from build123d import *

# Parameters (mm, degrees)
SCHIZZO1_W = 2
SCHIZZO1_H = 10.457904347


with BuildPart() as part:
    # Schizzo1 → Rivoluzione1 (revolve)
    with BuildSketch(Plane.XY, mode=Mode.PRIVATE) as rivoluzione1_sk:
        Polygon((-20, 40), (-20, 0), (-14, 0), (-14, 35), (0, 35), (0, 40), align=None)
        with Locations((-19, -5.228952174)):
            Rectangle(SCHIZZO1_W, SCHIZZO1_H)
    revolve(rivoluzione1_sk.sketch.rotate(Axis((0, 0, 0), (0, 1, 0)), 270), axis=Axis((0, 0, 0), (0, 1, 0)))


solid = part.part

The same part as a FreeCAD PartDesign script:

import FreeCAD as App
import Part
import Sketcher
from FreeCAD import Vector


def add_polygon(sketch, points):
    """Adds a closed chain of lines whose ends are joined by coincident constraints."""
    first, n = sketch.GeometryCount, len(points)
    for a, b in zip(points, points[1:] + points[:1]):
        sketch.addGeometry(Part.LineSegment(App.Vector(*a, 0), App.Vector(*b, 0)), False)
    for i in range(n):
        sketch.addConstraint(Sketcher.Constraint("Coincident", first + i, 2, first + (i + 1) % n, 1))

doc = App.newDocument("Part")
body = doc.addObject("PartDesign::Body", "Body")

# Sketch on XY plane
sketch1 = doc.addObject("Sketcher::SketchObject", "Sketch")
body.addObject(sketch1)
sketch1.AttachmentSupport = (doc.XY_Plane, [""])
sketch1.MapMode = "FlatFace"
add_polygon(sketch1, [(-20, 40), (-20, -10.5), (-18, -10.5), (-18, 0), (-14, 0), (-14, 35), (0, 35), (0, 40)])  # lines 0-7
sketch1.addConstraint([
    Sketcher.Constraint("Vertical", 0),
    Sketcher.Constraint("Horizontal", 1),
    Sketcher.Constraint("Vertical", 2),
    Sketcher.Constraint("Horizontal", 3),
    Sketcher.Constraint("Vertical", 4),
    Sketcher.Constraint("Horizontal", 5),
    Sketcher.Constraint("Vertical", 6),
    Sketcher.Constraint("Horizontal", 7),
    Sketcher.Constraint("PointOnObject", 2, 2, -1),
    Sketcher.Constraint("PointOnObject", 5, 2, -2),
    Sketcher.Constraint("DistanceX", 1, 1, 1, 2, 2.0),
    Sketcher.Constraint("DistanceX", 3, 1, 3, 2, 4.0),
    Sketcher.Constraint("DistanceX", 5, 1, 5, 2, 14.0),
    Sketcher.Constraint("DistanceY", 4, 1, 4, 2, 35.0),
    Sketcher.Constraint("DistanceY", 6, 1, 6, 2, 5.0),
    Sketcher.Constraint("DistanceY", 0, 2, 0, 1, 50.457904),
])
revolution = doc.addObject("PartDesign::Revolution", "Revolution")
body.addObject(revolution)
revolution.Profile = sketch1
revolution.ReferenceAxis = (sketch1, ["V_Axis"])
revolution.Angle = 360

doc.recompute()
